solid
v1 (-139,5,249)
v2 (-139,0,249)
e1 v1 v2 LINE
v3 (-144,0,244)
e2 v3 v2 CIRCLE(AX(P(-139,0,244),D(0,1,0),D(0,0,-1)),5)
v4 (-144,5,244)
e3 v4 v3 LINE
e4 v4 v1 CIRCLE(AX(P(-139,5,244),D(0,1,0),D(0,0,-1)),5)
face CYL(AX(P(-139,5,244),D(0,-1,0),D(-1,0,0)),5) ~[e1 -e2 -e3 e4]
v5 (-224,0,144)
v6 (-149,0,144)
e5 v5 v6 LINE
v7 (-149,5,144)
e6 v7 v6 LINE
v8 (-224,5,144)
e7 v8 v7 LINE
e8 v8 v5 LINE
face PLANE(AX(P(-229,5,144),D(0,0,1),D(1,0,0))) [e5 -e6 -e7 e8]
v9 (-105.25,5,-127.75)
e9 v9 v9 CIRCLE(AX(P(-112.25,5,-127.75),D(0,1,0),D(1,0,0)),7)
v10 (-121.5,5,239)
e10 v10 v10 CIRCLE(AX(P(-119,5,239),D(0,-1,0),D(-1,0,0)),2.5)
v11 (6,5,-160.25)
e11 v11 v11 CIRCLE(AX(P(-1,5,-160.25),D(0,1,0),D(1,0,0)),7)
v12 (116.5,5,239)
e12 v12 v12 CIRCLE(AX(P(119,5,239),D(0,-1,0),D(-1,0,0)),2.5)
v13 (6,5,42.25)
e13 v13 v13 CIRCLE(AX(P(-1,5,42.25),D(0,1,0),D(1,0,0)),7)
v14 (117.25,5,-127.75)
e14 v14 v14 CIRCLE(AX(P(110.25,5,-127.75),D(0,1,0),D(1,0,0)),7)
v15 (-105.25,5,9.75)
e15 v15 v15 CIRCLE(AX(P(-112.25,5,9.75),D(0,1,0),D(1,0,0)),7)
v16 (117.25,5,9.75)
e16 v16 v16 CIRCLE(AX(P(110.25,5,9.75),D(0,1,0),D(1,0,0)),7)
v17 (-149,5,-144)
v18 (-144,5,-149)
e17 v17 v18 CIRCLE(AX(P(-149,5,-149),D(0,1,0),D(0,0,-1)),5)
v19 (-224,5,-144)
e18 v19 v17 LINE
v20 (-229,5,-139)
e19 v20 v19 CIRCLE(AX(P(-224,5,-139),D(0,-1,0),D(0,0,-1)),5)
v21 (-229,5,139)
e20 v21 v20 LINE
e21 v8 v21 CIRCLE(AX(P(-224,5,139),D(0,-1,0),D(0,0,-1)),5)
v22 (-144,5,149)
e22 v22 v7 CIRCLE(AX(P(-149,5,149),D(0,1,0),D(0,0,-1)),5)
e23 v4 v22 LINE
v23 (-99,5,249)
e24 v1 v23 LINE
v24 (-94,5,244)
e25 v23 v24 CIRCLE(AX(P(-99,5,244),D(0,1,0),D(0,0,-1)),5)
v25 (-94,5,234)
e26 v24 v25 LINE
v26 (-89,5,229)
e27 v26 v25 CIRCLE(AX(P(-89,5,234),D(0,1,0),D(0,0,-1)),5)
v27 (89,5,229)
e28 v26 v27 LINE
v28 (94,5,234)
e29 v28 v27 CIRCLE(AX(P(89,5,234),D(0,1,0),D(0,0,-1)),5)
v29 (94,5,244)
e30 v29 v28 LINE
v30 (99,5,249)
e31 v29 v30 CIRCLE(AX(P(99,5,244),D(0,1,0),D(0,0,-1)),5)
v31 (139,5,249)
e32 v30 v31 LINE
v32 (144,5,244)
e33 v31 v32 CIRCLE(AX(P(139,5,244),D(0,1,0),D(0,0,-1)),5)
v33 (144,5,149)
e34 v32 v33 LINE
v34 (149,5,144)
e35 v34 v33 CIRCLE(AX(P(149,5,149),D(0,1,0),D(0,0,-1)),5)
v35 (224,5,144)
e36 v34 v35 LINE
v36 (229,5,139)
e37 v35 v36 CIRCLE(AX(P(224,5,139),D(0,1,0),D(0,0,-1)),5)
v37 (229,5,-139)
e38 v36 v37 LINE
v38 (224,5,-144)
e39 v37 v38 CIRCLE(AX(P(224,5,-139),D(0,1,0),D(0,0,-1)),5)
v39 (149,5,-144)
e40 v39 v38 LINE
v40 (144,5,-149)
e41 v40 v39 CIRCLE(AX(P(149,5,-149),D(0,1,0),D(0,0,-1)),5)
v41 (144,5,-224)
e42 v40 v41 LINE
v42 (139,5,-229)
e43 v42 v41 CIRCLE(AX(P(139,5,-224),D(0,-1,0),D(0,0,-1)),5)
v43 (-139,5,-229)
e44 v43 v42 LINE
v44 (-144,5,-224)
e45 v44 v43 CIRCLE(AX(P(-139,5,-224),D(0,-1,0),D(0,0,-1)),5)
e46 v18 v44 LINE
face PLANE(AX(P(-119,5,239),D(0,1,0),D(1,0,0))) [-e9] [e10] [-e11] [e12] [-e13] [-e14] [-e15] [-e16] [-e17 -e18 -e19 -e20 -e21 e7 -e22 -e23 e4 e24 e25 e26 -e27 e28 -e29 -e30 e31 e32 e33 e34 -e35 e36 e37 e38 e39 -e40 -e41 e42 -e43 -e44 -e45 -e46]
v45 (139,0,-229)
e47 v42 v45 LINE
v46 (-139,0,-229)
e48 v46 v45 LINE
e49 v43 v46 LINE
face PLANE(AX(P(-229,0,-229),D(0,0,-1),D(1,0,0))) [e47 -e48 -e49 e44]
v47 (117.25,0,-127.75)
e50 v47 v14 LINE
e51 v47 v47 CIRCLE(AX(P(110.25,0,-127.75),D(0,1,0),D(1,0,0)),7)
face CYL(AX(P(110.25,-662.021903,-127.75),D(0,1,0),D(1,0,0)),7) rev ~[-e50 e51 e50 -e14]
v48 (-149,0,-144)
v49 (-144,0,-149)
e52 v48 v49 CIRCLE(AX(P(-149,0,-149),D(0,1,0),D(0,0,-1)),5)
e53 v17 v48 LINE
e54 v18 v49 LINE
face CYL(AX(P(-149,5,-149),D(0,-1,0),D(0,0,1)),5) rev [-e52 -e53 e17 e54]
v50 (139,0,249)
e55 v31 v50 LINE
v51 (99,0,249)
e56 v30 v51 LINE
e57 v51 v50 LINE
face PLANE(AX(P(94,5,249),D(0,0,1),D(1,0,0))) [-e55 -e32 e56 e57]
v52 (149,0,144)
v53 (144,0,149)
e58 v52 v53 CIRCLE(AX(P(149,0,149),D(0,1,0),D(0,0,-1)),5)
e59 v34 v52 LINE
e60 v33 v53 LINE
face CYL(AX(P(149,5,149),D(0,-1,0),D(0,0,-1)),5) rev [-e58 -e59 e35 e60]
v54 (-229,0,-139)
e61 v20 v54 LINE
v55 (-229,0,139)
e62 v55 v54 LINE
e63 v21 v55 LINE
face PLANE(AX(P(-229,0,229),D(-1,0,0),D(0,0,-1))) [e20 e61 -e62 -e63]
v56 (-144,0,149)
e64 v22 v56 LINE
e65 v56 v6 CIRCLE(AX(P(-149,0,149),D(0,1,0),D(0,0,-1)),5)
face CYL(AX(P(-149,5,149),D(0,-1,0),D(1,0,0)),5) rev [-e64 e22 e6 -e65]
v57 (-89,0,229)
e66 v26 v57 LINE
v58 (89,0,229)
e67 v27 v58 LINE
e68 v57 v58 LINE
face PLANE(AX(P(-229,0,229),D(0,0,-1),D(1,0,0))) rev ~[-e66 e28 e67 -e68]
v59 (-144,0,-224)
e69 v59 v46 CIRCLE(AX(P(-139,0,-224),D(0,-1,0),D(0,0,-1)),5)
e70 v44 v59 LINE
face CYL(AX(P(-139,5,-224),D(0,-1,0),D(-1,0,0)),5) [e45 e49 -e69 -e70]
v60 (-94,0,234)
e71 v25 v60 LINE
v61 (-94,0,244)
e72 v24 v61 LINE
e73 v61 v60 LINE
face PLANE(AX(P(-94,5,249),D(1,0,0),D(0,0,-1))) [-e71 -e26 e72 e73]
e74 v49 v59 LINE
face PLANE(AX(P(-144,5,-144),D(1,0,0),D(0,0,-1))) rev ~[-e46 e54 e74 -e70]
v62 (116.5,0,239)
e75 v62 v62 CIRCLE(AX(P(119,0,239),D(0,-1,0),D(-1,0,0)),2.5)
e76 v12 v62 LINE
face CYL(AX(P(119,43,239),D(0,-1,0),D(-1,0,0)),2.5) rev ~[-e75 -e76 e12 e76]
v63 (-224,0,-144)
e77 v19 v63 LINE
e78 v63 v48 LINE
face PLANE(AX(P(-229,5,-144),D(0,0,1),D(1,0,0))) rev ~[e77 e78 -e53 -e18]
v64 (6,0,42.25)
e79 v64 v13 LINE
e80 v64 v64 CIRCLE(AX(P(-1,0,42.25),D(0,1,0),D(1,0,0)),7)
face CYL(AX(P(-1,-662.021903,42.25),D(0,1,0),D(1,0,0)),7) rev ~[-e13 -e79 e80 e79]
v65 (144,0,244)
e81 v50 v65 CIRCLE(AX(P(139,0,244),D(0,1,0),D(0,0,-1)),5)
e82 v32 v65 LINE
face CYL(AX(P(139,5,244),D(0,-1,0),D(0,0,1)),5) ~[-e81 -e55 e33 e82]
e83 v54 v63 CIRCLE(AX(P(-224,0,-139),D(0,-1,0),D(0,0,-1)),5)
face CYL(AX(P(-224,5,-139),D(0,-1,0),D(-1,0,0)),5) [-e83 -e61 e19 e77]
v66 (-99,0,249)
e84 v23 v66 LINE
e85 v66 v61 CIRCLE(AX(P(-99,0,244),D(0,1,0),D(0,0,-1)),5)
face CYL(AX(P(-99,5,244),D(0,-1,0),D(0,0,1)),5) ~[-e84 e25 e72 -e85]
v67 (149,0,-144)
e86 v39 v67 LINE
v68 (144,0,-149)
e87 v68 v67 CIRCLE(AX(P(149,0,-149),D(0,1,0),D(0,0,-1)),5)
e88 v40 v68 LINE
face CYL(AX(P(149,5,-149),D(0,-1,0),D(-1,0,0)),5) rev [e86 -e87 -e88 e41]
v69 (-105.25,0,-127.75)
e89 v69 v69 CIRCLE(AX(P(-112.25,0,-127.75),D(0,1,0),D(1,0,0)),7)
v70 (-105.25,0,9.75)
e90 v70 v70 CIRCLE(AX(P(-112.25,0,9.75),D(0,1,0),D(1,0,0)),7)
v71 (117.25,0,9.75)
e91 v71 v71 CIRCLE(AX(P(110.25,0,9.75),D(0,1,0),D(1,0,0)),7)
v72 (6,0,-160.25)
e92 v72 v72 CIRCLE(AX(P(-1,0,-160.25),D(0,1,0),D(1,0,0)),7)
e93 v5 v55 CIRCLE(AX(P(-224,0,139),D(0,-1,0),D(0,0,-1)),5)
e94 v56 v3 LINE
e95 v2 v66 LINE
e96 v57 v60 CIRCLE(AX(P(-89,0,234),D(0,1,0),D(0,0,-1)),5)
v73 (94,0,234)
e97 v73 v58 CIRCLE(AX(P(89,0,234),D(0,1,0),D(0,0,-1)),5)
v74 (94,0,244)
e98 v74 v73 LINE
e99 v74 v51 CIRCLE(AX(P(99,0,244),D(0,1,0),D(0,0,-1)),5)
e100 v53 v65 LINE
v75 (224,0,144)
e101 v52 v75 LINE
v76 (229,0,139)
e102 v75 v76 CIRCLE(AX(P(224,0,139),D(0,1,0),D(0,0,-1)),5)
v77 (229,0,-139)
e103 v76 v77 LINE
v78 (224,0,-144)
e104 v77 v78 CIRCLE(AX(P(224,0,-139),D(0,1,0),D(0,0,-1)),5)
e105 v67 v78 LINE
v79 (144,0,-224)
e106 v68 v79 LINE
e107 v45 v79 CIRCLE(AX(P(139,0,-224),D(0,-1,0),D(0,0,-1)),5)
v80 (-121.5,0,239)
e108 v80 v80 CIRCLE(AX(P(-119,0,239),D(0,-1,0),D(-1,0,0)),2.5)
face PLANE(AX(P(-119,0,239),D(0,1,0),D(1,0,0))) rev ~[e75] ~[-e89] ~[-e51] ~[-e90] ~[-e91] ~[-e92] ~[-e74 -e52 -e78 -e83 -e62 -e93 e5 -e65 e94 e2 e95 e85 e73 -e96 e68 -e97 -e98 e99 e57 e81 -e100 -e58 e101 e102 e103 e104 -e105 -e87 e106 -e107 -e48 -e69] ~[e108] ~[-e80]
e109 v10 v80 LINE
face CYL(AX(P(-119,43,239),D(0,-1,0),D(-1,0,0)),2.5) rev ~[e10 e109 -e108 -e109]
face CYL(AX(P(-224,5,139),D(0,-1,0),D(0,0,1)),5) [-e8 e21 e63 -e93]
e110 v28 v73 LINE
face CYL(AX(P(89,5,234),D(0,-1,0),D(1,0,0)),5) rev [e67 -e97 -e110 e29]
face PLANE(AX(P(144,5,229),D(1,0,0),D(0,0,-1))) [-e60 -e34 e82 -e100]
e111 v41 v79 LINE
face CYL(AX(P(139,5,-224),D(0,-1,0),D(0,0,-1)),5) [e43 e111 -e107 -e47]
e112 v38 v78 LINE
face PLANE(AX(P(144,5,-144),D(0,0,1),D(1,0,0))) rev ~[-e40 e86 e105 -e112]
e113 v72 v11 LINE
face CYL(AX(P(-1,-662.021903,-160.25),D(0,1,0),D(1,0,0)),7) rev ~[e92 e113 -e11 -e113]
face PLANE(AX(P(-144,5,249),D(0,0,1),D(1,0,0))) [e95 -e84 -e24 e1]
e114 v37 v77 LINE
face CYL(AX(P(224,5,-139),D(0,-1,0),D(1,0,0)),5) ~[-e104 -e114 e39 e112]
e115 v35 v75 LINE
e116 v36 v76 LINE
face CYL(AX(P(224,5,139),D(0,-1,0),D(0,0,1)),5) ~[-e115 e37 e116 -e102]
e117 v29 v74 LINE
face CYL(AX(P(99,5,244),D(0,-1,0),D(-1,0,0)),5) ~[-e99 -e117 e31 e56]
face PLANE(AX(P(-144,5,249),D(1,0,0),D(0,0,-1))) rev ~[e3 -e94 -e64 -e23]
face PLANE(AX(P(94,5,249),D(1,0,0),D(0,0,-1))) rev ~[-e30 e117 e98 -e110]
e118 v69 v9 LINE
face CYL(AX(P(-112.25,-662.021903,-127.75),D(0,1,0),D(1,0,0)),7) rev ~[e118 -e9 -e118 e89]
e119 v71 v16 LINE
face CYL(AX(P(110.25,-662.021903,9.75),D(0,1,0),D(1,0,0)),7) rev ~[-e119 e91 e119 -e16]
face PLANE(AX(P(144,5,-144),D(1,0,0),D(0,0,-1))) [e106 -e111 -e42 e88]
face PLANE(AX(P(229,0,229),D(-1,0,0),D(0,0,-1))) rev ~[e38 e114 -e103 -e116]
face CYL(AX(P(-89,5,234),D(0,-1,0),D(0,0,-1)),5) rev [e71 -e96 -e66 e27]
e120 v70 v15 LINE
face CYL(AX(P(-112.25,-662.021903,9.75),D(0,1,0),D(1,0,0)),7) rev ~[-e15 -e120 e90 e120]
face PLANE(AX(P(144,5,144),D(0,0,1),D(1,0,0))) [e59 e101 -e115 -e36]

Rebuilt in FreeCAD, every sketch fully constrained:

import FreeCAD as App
import Part
import Sketcher

V = App.Vector
Q = App.Units.Quantity


def edges_at(feature, points):
    """Names of the edges that pass closest to the given points."""
    edges = feature.Shape.Edges
    near = lambda p: min(range(len(edges)), key=lambda i: edges[i].distToShape(Part.Vertex(*p))[0])
    return sorted({f"Edge{near(p) + 1}" for p in points})


def add_polygon(sketch, points):
    """Adds a closed chain of lines whose ends are joined by coincident constraints."""
    first, n = sketch.GeometryCount, len(points)
    for a, b in zip(points, points[1:] + points[:1]):
        sketch.addGeometry(Part.LineSegment(App.Vector(*a, 0), App.Vector(*b, 0)), False)
    for i in range(n):
        sketch.addConstraint(Sketcher.Constraint("Coincident", first + i, 2, first + (i + 1) % n, 1))

doc = App.newDocument("Part")
body = doc.addObject("PartDesign::Body", "Body")

# Sketch on XZ plane
sketch1 = body.newObject("Sketcher::SketchObject", "Sketch")
sketch1.AttachmentSupport = (doc.getObject("XZ_Plane"), [""])
sketch1.MapMode = "FlatFace"
add_polygon(sketch1, [(-229, -229), (-229, 229), (229, 229), (229, -229)])  # lines 0-3
sketch1.addConstraint(Sketcher.Constraint("Vertical", 0))
sketch1.addConstraint(Sketcher.Constraint("Horizontal", 1))
sketch1.addConstraint(Sketcher.Constraint("Vertical", 2))
sketch1.addConstraint(Sketcher.Constraint("Horizontal", 3))
sketch1.addConstraint(Sketcher.Constraint("Symmetric", 0, 2, 2, 2, -1, 1))
sketch1.addConstraint(Sketcher.Constraint("Equal", 3, 0))
sketch1.addConstraint(Sketcher.Constraint("DistanceX", 1, 1, 1, 2, Q("458 mm")))
pad1 = body.newObject("PartDesign::Pad", "Pad")
pad1.Profile = sketch1
pad1.Length = 5
pad1.Reversed = True

# Sketch on XZ plane
sketch2 = body.newObject("Sketcher::SketchObject", "Sketch001")
sketch2.AttachmentSupport = (doc.getObject("XZ_Plane"), [""])
sketch2.MapMode = "FlatFace"
sketch2.AttachmentOffset = App.Placement(V(0, 0, -5), App.Rotation())
add_polygon(sketch2, [(-229, -229), (-229, -144), (-144, -144), (-144, -229)])  # lines 0-3
add_polygon(sketch2, [(144, -229), (144, -144), (229, -144), (229, -229)])  # lines 4-7
add_polygon(sketch2, [(144, 144), (144, 229), (229, 229), (229, 144)])  # lines 8-11
add_polygon(sketch2, [(-229, 144), (-229, 229), (-144, 229), (-144, 144)])  # lines 12-15
sketch2.addConstraint(Sketcher.Constraint("Vertical", 0))
sketch2.addConstraint(Sketcher.Constraint("Horizontal", 1))
sketch2.addConstraint(Sketcher.Constraint("Vertical", 2))
sketch2.addConstraint(Sketcher.Constraint("Horizontal", 3))
sketch2.addConstraint(Sketcher.Constraint("Vertical", 4))
sketch2.addConstraint(Sketcher.Constraint("Horizontal", 5))
sketch2.addConstraint(Sketcher.Constraint("Vertical", 6))
sketch2.addConstraint(Sketcher.Constraint("Horizontal", 7))
sketch2.addConstraint(Sketcher.Constraint("Vertical", 8))
sketch2.addConstraint(Sketcher.Constraint("Horizontal", 9))
sketch2.addConstraint(Sketcher.Constraint("Vertical", 10))
sketch2.addConstraint(Sketcher.Constraint("Horizontal", 11))
sketch2.addConstraint(Sketcher.Constraint("Vertical", 12))
sketch2.addConstraint(Sketcher.Constraint("Horizontal", 13))
sketch2.addConstraint(Sketcher.Constraint("Vertical", 14))
sketch2.addConstraint(Sketcher.Constraint("Horizontal", 15))
sketch2.addConstraint(Sketcher.Constraint("Symmetric", 2, 2, 8, 2, -1, 1))
sketch2.addConstraint(Sketcher.Constraint("Symmetric", 0, 2, 10, 2, -1, 1))
sketch2.addConstraint(Sketcher.Constraint("Symmetric", 6, 2, 12, 2, -1, 1))
sketch2.addConstraint(Sketcher.Constraint("Symmetric", 4, 2, 14, 2, -1, 1))
sketch2.addConstraint(Sketcher.Constraint("Symmetric", 1, 2, 4, 2, -2))
sketch2.addConstraint(Sketcher.Constraint("Symmetric", 3, 2, 6, 2, -2))
sketch2.addConstraint(Sketcher.Constraint("Equal", 15, 0))
sketch2.addConstraint(Sketcher.Constraint("DistanceX", 1, 1, 1, 2, Q("85 mm")))
sketch2.addConstraint(Sketcher.Constraint("DistanceX", 0, 2, -1, 1, Q("229 mm")))
sketch2.addConstraint(Sketcher.Constraint("DistanceY", 0, 2, -1, 1, Q("144 mm")))
pocket1 = body.newObject("PartDesign::Pocket", "Pocket")
pocket1.Profile = sketch2
pocket1.Type = "ThroughAll"
pocket1.Reversed = True

# Sketch on XZ plane
sketch3 = body.newObject("Sketcher::SketchObject", "Sketch002")
sketch3.AttachmentSupport = (doc.getObject("XZ_Plane"), [""])
sketch3.MapMode = "FlatFace"
sketch3.AttachmentOffset = App.Placement(V(0, 0, -5), App.Rotation())
add_polygon(sketch3, [(-144, 229), (-144, 249), (-94, 249), (-94, 229)])  # lines 0-3
add_polygon(sketch3, [(94, 229), (94, 249), (144, 249), (144, 229)])  # lines 4-7
sketch3.addConstraint(Sketcher.Constraint("Vertical", 0))
sketch3.addConstraint(Sketcher.Constraint("Horizontal", 1))
sketch3.addConstraint(Sketcher.Constraint("Vertical", 2))
sketch3.addConstraint(Sketcher.Constraint("Horizontal", 3))
sketch3.addConstraint(Sketcher.Constraint("Vertical", 4))
sketch3.addConstraint(Sketcher.Constraint("Horizontal", 5))
sketch3.addConstraint(Sketcher.Constraint("Vertical", 6))
sketch3.addConstraint(Sketcher.Constraint("Horizontal", 7))
sketch3.addConstraint(Sketcher.Constraint("Symmetric", 1, 2, 4, 2, -2))
sketch3.addConstraint(Sketcher.Constraint("Symmetric", 3, 2, 6, 2, -2))
sketch3.addConstraint(Sketcher.Constraint("DistanceX", 1, 1, 1, 2, Q("50 mm")))
sketch3.addConstraint(Sketcher.Constraint("DistanceY", 0, 1, 0, 2, Q("20 mm")))
sketch3.addConstraint(Sketcher.Constraint("DistanceX", 0, 2, -1, 1, Q("144 mm")))
sketch3.addConstraint(Sketcher.Constraint("DistanceY", -1, 1, 0, 2, Q("249 mm")))
pad2 = body.newObject("PartDesign::Pad", "Pad001")
pad2.Profile = sketch3
pad2.Length = 5
doc.recompute()

fillet = body.newObject("PartDesign::Fillet", "Fillet")
fillet.Base = (pad2, edges_at(pad2, [
    (-144, 2.5, 144),
    (144, 2.5, 144),
    (144, 2.5, -144),
    (-144, 2.5, -144),
    (-94, 2.5, 229),
    (94, 2.5, 229),
]))
fillet.Radius = 5
doc.recompute()

fillet2 = body.newObject("PartDesign::Fillet", "Fillet001")
fillet2.Base = (fillet, edges_at(fillet, [
    (-229, 2.5, 144),
    (229, 2.5, 144),
    (229, 2.5, -144),
    (144, 2.5, -229),
    (-229, 2.5, -144),
    (-144, 2.5, -229),
    (-144, 2.5, 249),
    (-94, 2.5, 249),
    (144, 2.5, 249),
    (94, 2.5, 249),
]))
fillet2.Radius = 5

# Sketch on XZ plane
sketch4 = body.newObject("Sketcher::SketchObject", "Sketch003")
sketch4.AttachmentSupport = (doc.getObject("XZ_Plane"), [""])
sketch4.MapMode = "FlatFace"
sketch4.AttachmentOffset = App.Placement(V(0, 0, -5), App.Rotation())
sketch4.addGeometry(Part.Circle(V(-119, 239, 0), V(0, 0, 1), 2.5), False)
sketch4.addGeometry(Part.Circle(V(119, 239, 0), V(0, 0, 1), 2.5), False)
sketch4.addConstraint(Sketcher.Constraint("Equal", 0, 1))
sketch4.addConstraint(Sketcher.Constraint("Symmetric", 0, 3, 1, 3, -2))
sketch4.addConstraint(Sketcher.Constraint("Diameter", 0, Q("5 mm")))
sketch4.addConstraint(Sketcher.Constraint("DistanceX", 0, 3, -1, 1, Q("119 mm")))
sketch4.addConstraint(Sketcher.Constraint("DistanceY", -1, 1, 0, 3, Q("239 mm")))
doc.recompute()
hole = body.newObject("PartDesign::Hole", "Hole")
hole.Profile = sketch4
hole.ThreadType = "None"
hole.Diameter = 5
hole.DepthType = "Dimension"
hole.Depth = 38
hole.DrillPoint = "Angled"
hole.DrillPointAngle = 118
hole.Reversed = True

# Sketch on XZ plane
sketch5 = body.newObject("Sketcher::SketchObject", "Sketch004")
sketch5.AttachmentSupport = (doc.getObject("XZ_Plane"), [""])
sketch5.MapMode = "FlatFace"
sketch5.addGeometry(Part.Circle(V(-112, -128, 0), V(0, 0, 1), 7), False)
sketch5.addGeometry(Part.Circle(V(-112, 10, 0), V(0, 0, 1), 7), False)
sketch5.addGeometry(Part.Circle(V(-1, -160, 0), V(0, 0, 1), 7), False)
sketch5.addGeometry(Part.Circle(V(110, -128, 0), V(0, 0, 1), 7), False)
sketch5.addGeometry(Part.Circle(V(110, 10, 0), V(0, 0, 1), 7), False)
sketch5.addGeometry(Part.Circle(V(-1, 42, 0), V(0, 0, 1), 7), False)
sketch5.addConstraint(Sketcher.Constraint("Equal", 0, 1))
sketch5.addConstraint(Sketcher.Constraint("Equal", 1, 2))
sketch5.addConstraint(Sketcher.Constraint("Equal", 2, 3))
sketch5.addConstraint(Sketcher.Constraint("Equal", 3, 4))
sketch5.addConstraint(Sketcher.Constraint("Equal", 4, 5))
sketch5.addConstraint(Sketcher.Constraint("Horizontal", 0, 3, 3, 3))
sketch5.addConstraint(Sketcher.Constraint("Horizontal", 1, 3, 4, 3))
sketch5.addConstraint(Sketcher.Constraint("Vertical", 0, 3, 1, 3))
sketch5.addConstraint(Sketcher.Constraint("Vertical", 3, 3, 4, 3))
sketch5.addConstraint(Sketcher.Constraint("Vertical", 2, 3, 5, 3))
sketch5.addConstraint(Sketcher.Constraint("Diameter", 0, Q("14 mm")))
sketch5.addConstraint(Sketcher.Constraint("DistanceX", 2, 3, -1, 1, Q("1 mm")))
sketch5.addConstraint(Sketcher.Constraint("DistanceY", 2, 3, 1, 3, Q("170 mm")))
sketch5.addConstraint(Sketcher.Constraint("DistanceY", 0, 3, 5, 3, Q("170 mm")))
sketch5.addConstraint(Sketcher.Constraint("DistanceY", 0, 3, 1, 3, Q("137.5 mm")))
sketch5.addConstraint(Sketcher.Constraint("DistanceX", 0, 3, 3, 3, Q("222.5 mm")))
sketch5.addConstraint(Sketcher.Constraint("DistanceX", 0, 3, -1, 1, Q("112.25 mm")))
sketch5.addConstraint(Sketcher.Constraint("DistanceY", 0, 3, -1, 1, Q("127.75 mm")))
doc.recompute()
hole2 = body.newObject("PartDesign::Hole", "Hole001")
hole2.Profile = sketch5
hole2.ThreadType = "None"
hole2.Diameter = 14
hole2.DepthType = "ThroughAll"

doc.recompute()
